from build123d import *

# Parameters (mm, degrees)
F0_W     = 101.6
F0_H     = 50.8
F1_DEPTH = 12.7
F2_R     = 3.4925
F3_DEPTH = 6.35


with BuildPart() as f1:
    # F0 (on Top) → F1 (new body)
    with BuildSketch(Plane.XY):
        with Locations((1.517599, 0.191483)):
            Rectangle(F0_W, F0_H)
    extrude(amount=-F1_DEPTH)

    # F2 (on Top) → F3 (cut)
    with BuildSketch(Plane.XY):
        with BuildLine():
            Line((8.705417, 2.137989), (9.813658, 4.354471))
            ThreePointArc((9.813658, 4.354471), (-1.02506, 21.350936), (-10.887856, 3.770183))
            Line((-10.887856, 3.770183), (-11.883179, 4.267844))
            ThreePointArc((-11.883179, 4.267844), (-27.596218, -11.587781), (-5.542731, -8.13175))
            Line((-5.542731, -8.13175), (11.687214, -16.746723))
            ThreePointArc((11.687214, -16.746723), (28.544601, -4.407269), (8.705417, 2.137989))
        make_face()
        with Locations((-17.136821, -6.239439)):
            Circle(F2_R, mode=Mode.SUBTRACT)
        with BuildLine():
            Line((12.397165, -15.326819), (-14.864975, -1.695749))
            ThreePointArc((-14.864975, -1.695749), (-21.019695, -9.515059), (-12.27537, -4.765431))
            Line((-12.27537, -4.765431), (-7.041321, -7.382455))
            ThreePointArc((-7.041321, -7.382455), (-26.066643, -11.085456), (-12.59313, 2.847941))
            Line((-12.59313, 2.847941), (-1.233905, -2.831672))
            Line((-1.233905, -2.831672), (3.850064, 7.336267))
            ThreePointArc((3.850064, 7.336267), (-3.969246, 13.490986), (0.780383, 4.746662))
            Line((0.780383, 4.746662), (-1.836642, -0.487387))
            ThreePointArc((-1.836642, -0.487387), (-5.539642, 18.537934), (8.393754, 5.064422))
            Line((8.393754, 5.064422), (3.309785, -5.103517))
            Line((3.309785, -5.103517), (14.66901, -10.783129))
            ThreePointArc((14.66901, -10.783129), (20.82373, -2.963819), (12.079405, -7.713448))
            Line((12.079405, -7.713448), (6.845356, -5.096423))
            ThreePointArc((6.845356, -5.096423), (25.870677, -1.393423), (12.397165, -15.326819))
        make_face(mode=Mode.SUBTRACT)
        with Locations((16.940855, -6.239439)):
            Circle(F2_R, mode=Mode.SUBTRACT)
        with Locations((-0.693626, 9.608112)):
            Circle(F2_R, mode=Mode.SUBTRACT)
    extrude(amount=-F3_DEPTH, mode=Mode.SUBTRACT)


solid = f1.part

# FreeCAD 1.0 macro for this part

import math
import FreeCAD as App
import Part
import Sketcher
Q = App.Units.Quantity


def add_polygon(sketch, points):
    """Adds a closed chain of lines whose ends are joined by coincident constraints."""
    first, n = sketch.GeometryCount, len(points)
    for a, b in zip(points, points[1:] + points[:1]):
        sketch.addGeometry(Part.LineSegment(App.Vector(*a, 0), App.Vector(*b, 0)), False)
    for i in range(n):
        sketch.addConstraint(Sketcher.Constraint("Coincident", first + i, 2, first + (i + 1) % n, 1))

doc = App.newDocument("Part")
params = doc.addObject("Spreadsheet::Sheet", "Params")
for row, (alias, value) in enumerate([
    ("sketch1_width", "4 in"),
    ("sketch1_height", "2 in"),
    ("pad1_length", "0.5 in"),
    ("sketch2_radius", "0.4 in"),
    ("sketch2_radius2", "0.2 in"),
    ("sketch2_diameter", "0.275 in"),
    ("sketch2_length", "1.2 in"),
    ("pocket1_length", "0.25 in"),
], start=1):
    params.set(f"A{row}", alias)
    params.set(f"B{row}", "=" + value)
    params.setAlias(f"B{row}", alias)

body = doc.addObject("PartDesign::Body", "Body")

sketch1 = body.newObject("Sketcher::SketchObject", "Sketch")
sketch1.AttachmentSupport = (doc.getObject("XY_Plane"), [""])
sketch1.MapMode = "FlatFace"
add_polygon(sketch1, [(-49, 26), (-49, -25), (52, -25), (52, 26)])
sketch1.addConstraint(Sketcher.Constraint("Vertical", 0))
sketch1.addConstraint(Sketcher.Constraint("Horizontal", 1))
sketch1.addConstraint(Sketcher.Constraint("Vertical", 2))
sketch1.addConstraint(Sketcher.Constraint("Horizontal", 3))
sketch1.addConstraint(Sketcher.Constraint("DistanceX", 1, 1, 1, 2, Q("4 in")))
sketch1.addConstraint(Sketcher.Constraint("DistanceY", 0, 2, 0, 1, Q("2 in")))
sketch1.addConstraint(Sketcher.Constraint("DistanceX", 0, 2, -1, 1, Q("49.282401 mm")))
sketch1.addConstraint(Sketcher.Constraint("DistanceY", 0, 2, -1, 1, Q("25.208517 mm")))
sketch1.setExpression("Constraints[8]", "Params.sketch1_width")
sketch1.setExpression("Constraints[9]", "Params.sketch1_height")
pad1 = body.newObject("PartDesign::Pad", "Pad")
pad1.Profile = sketch1
pad1.setExpression("Length", "Params.pad1_length")
pad1.Reversed = True

sketch2 = body.newObject("Sketcher::SketchObject", "Sketch001")
sketch2.AttachmentSupport = (doc.getObject("XY_Plane"), [""])
sketch2.MapMode = "FlatFace"
sketch2.addGeometry(Part.LineSegment(App.Vector(8.7, 2.1, 0), App.Vector(9.8, 4.4, 0)), False)
sketch2.addGeometry(Part.ArcOfCircle(Part.Circle(App.Vector(-0.7, 9.6, 0), App.Vector(0, 0, 1), 11.7), math.radians(-27), math.radians(210)), False)
sketch2.addGeometry(Part.LineSegment(App.Vector(-10.9, 3.8, 0), App.Vector(-11.9, 4.3, 0)), False)
sketch2.addGeometry(Part.ArcOfCircle(Part.Circle(App.Vector(-17.1, -6.2, 0), App.Vector(0, 0, 1), 11.7), math.radians(63), math.radians(351)), False)
sketch2.addGeometry(Part.LineSegment(App.Vector(-5.5, -8.1, 0), App.Vector(11.7, -16.7, 0)), False)
sketch2.addGeometry(Part.ArcOfCircle(Part.Circle(App.Vector(16.9, -6.2, 0), App.Vector(0, 0, 1), 11.7), math.radians(-117), math.radians(135)), False)
sketch2.addGeometry(Part.Circle(App.Vector(-17.1, -6.2, 0), App.Vector(0, 0, 1), 3.5), False)
sketch2.addGeometry(Part.Circle(App.Vector(16.9, -6.2, 0), App.Vector(0, 0, 1), 3.5), False)
sketch2.addGeometry(Part.Circle(App.Vector(-0.7, 9.6, 0), App.Vector(0, 0, 1), 3.5), False)
sketch2.addGeometry(Part.ArcOfCircle(Part.Circle(App.Vector(16.9, -6.2, 0), App.Vector(0, 0, 1), 10.2), math.radians(-117), math.radians(174)), False)
sketch2.addGeometry(Part.LineSegment(App.Vector(12.4, -15.3, 0), App.Vector(-14.9, -1.7, 0)), False)
sketch2.addGeometry(Part.ArcOfCircle(Part.Circle(App.Vector(-17.1, -6.2, 0), App.Vector(0, 0, 1), 5.1), math.radians(63), math.radians(377)), False)
sketch2.addGeometry(Part.LineSegment(App.Vector(-12.3, -4.8, 0), App.Vector(-7, -7.4, 0)), False)
sketch2.addGeometry(Part.ArcOfCircle(Part.Circle(App.Vector(-17.1, -6.2, 0), App.Vector(0, 0, 1), 10.2), math.radians(63), math.radians(354)), False)
sketch2.addGeometry(Part.LineSegment(App.Vector(-12.6, 2.8, 0), App.Vector(-1.2, -2.8, 0)), False)
sketch2.addGeometry(Part.LineSegment(App.Vector(-1.2, -2.8, 0), App.Vector(3.9, 7.3, 0)), False)
sketch2.addGeometry(Part.ArcOfCircle(Part.Circle(App.Vector(-0.7, 9.6, 0), App.Vector(0, 0, 1), 5.1), math.radians(-27), math.radians(287)), False)
sketch2.addGeometry(Part.LineSegment(App.Vector(0.8, 4.7, 0), App.Vector(-1.8, -0.5, 0)), False)
sketch2.addGeometry(Part.ArcOfCircle(Part.Circle(App.Vector(-0.7, 9.6, 0), App.Vector(0, 0, 1), 10.2), math.radians(-27), math.radians(264)), False)
sketch2.addGeometry(Part.LineSegment(App.Vector(8.4, 5.1, 0), App.Vector(3.3, -5.1, 0)), False)
sketch2.addGeometry(Part.LineSegment(App.Vector(3.3, -5.1, 0), App.Vector(14.7, -10.8, 0)), False)
sketch2.addGeometry(Part.ArcOfCircle(Part.Circle(App.Vector(16.9, -6.2, 0), App.Vector(0, 0, 1), 5.1), math.radians(-117), math.radians(197)), False)
sketch2.addGeometry(Part.LineSegment(App.Vector(12.1, -7.7, 0), App.Vector(6.8, -5.1, 0)), False)
sketch2.addConstraint(Sketcher.Constraint("Tangent", 0, 2, 1, 1))
sketch2.addConstraint(Sketcher.Constraint("Coincident", 1, 2, 2, 1))
sketch2.addConstraint(Sketcher.Constraint("Tangent", 2, 2, 3, 1))
sketch2.addConstraint(Sketcher.Constraint("Coincident", 3, 2, 4, 1))
sketch2.addConstraint(Sketcher.Constraint("Tangent", 4, 2, 5, 1))
sketch2.addConstraint(Sketcher.Constraint("Coincident", 5, 2, 0, 1))
sketch2.addConstraint(Sketcher.Constraint("Tangent", 9, 1, 10, 1))
sketch2.addConstraint(Sketcher.Constraint("Tangent", 10, 2, 11, 1))
sketch2.addConstraint(Sketcher.Constraint("Coincident", 11, 2, 12, 1))
sketch2.addConstraint(Sketcher.Constraint("Coincident", 12, 2, 13, 2))
sketch2.addConstraint(Sketcher.Constraint("Tangent", 13, 1, 14, 1))
sketch2.addConstraint(Sketcher.Constraint("Coincident", 14, 2, 15, 1))
sketch2.addConstraint(Sketcher.Constraint("Tangent", 15, 2, 16, 1))
sketch2.addConstraint(Sketcher.Constraint("Coincident", 16, 2, 17, 1))
sketch2.addConstraint(Sketcher.Constraint("Coincident", 17, 2, 18, 2))
sketch2.addConstraint(Sketcher.Constraint("Tangent", 18, 1, 19, 1))
sketch2.addConstraint(Sketcher.Constraint("Coincident", 19, 2, 20, 1))
sketch2.addConstraint(Sketcher.Constraint("Tangent", 20, 2, 21, 1))
sketch2.addConstraint(Sketcher.Constraint("Coincident", 21, 2, 22, 1))
sketch2.addConstraint(Sketcher.Constraint("Coincident", 22, 2, 9, 2))
sketch2.addConstraint(Sketcher.Constraint("Coincident", 6, 3, 3, 3))
sketch2.addConstraint(Sketcher.Constraint("Coincident", 7, 3, 5, 3))
sketch2.addConstraint(Sketcher.Constraint("Coincident", 8, 3, 1, 3))
sketch2.addConstraint(Sketcher.Constraint("Coincident", 9, 3, 5, 3))
sketch2.addConstraint(Sketcher.Constraint("Coincident", 11, 3, 3, 3))
sketch2.addConstraint(Sketcher.Constraint("Coincident", 13, 3, 3, 3))
sketch2.addConstraint(Sketcher.Constraint("Coincident", 16, 3, 1, 3))
sketch2.addConstraint(Sketcher.Constraint("Coincident", 18, 3, 1, 3))
sketch2.addConstraint(Sketcher.Constraint("Coincident", 21, 3, 5, 3))
sketch2.addConstraint(Sketcher.Constraint("Equal", 1, 3))
sketch2.addConstraint(Sketcher.Constraint("Equal", 3, 5))
sketch2.addConstraint(Sketcher.Constraint("Equal", 6, 7))
sketch2.addConstraint(Sketcher.Constraint("Equal", 7, 8))
sketch2.addConstraint(Sketcher.Constraint("Equal", 9, 13))
sketch2.addConstraint(Sketcher.Constraint("Equal", 11, 16))
sketch2.addConstraint(Sketcher.Constraint("Equal", 13, 18))
sketch2.addConstraint(Sketcher.Constraint("Equal", 16, 21))
sketch2.addConstraint(Sketcher.Constraint("Perpendicular", 0, 2))
sketch2.addConstraint(Sketcher.Constraint("Parallel", 2, 4))
sketch2.addConstraint(Sketcher.Constraint("Parallel", 4, 10))
sketch2.addConstraint(Sketcher.Constraint("Parallel", 10, 12))
sketch2.addConstraint(Sketcher.Constraint("Parallel", 12, 14))
sketch2.addConstraint(Sketcher.Constraint("Perpendicular", 14, 15))
sketch2.addConstraint(Sketcher.Constraint("Parallel", 15, 17))
sketch2.addConstraint(Sketcher.Constraint("Parallel", 17, 19))
sketch2.addConstraint(Sketcher.Constraint("Perpendicular", 19, 20))
sketch2.addConstraint(Sketcher.Constraint("Parallel", 20, 22))
sketch2.addConstraint(Sketcher.Constraint("Horizontal", 3, 3, 5, 3))
sketch2.addConstraint(Sketcher.Constraint("Equal", 12, 17))
sketch2.addConstraint(Sketcher.Constraint("Equal", 14, 20))
sketch2.addConstraint(Sketcher.Constraint("Equal", 17, 22))
sketch2.addConstraint(Sketcher.Constraint("Radius", 9, Q("0.4 in")))
sketch2.addConstraint(Sketcher.Constraint("Radius", 11, Q("0.2 in")))
sketch2.addConstraint(Sketcher.Constraint("Diameter", 6, Q("0.275 in")))
sketch2.addConstraint(Sketcher.Constraint("Distance", 10, Q("1.2 in")))
sketch2.addConstraint(Sketcher.Constraint("Radius", 1, Q("0.4625 in")))
sketch2.addConstraint(Sketcher.Constraint("DistanceY", 3, 2, 12, 2, Q("0.0294998 in")))
sketch2.addConstraint(Sketcher.Constraint("Distance", 15, Q("11.368101 mm")))
sketch2.addConstraint(Sketcher.Constraint("DistanceX", 3, 3, -1, 1, Q("17.136821 mm")))
sketch2.addConstraint(Sketcher.Constraint("DistanceY", 3, 3, -1, 1, Q("6.239439 mm")))
sketch2.setExpression("Constraints[51]", "Params.sketch2_radius")
sketch2.setExpression("Constraints[52]", "Params.sketch2_radius2")
sketch2.setExpression("Constraints[53]", "Params.sketch2_diameter")
sketch2.setExpression("Constraints[54]", "Params.sketch2_length")
pocket1 = body.newObject("PartDesign::Pocket", "Pocket")
pocket1.Profile = sketch2
pocket1.setExpression("Length", "Params.pocket1_length")

doc.recompute()
